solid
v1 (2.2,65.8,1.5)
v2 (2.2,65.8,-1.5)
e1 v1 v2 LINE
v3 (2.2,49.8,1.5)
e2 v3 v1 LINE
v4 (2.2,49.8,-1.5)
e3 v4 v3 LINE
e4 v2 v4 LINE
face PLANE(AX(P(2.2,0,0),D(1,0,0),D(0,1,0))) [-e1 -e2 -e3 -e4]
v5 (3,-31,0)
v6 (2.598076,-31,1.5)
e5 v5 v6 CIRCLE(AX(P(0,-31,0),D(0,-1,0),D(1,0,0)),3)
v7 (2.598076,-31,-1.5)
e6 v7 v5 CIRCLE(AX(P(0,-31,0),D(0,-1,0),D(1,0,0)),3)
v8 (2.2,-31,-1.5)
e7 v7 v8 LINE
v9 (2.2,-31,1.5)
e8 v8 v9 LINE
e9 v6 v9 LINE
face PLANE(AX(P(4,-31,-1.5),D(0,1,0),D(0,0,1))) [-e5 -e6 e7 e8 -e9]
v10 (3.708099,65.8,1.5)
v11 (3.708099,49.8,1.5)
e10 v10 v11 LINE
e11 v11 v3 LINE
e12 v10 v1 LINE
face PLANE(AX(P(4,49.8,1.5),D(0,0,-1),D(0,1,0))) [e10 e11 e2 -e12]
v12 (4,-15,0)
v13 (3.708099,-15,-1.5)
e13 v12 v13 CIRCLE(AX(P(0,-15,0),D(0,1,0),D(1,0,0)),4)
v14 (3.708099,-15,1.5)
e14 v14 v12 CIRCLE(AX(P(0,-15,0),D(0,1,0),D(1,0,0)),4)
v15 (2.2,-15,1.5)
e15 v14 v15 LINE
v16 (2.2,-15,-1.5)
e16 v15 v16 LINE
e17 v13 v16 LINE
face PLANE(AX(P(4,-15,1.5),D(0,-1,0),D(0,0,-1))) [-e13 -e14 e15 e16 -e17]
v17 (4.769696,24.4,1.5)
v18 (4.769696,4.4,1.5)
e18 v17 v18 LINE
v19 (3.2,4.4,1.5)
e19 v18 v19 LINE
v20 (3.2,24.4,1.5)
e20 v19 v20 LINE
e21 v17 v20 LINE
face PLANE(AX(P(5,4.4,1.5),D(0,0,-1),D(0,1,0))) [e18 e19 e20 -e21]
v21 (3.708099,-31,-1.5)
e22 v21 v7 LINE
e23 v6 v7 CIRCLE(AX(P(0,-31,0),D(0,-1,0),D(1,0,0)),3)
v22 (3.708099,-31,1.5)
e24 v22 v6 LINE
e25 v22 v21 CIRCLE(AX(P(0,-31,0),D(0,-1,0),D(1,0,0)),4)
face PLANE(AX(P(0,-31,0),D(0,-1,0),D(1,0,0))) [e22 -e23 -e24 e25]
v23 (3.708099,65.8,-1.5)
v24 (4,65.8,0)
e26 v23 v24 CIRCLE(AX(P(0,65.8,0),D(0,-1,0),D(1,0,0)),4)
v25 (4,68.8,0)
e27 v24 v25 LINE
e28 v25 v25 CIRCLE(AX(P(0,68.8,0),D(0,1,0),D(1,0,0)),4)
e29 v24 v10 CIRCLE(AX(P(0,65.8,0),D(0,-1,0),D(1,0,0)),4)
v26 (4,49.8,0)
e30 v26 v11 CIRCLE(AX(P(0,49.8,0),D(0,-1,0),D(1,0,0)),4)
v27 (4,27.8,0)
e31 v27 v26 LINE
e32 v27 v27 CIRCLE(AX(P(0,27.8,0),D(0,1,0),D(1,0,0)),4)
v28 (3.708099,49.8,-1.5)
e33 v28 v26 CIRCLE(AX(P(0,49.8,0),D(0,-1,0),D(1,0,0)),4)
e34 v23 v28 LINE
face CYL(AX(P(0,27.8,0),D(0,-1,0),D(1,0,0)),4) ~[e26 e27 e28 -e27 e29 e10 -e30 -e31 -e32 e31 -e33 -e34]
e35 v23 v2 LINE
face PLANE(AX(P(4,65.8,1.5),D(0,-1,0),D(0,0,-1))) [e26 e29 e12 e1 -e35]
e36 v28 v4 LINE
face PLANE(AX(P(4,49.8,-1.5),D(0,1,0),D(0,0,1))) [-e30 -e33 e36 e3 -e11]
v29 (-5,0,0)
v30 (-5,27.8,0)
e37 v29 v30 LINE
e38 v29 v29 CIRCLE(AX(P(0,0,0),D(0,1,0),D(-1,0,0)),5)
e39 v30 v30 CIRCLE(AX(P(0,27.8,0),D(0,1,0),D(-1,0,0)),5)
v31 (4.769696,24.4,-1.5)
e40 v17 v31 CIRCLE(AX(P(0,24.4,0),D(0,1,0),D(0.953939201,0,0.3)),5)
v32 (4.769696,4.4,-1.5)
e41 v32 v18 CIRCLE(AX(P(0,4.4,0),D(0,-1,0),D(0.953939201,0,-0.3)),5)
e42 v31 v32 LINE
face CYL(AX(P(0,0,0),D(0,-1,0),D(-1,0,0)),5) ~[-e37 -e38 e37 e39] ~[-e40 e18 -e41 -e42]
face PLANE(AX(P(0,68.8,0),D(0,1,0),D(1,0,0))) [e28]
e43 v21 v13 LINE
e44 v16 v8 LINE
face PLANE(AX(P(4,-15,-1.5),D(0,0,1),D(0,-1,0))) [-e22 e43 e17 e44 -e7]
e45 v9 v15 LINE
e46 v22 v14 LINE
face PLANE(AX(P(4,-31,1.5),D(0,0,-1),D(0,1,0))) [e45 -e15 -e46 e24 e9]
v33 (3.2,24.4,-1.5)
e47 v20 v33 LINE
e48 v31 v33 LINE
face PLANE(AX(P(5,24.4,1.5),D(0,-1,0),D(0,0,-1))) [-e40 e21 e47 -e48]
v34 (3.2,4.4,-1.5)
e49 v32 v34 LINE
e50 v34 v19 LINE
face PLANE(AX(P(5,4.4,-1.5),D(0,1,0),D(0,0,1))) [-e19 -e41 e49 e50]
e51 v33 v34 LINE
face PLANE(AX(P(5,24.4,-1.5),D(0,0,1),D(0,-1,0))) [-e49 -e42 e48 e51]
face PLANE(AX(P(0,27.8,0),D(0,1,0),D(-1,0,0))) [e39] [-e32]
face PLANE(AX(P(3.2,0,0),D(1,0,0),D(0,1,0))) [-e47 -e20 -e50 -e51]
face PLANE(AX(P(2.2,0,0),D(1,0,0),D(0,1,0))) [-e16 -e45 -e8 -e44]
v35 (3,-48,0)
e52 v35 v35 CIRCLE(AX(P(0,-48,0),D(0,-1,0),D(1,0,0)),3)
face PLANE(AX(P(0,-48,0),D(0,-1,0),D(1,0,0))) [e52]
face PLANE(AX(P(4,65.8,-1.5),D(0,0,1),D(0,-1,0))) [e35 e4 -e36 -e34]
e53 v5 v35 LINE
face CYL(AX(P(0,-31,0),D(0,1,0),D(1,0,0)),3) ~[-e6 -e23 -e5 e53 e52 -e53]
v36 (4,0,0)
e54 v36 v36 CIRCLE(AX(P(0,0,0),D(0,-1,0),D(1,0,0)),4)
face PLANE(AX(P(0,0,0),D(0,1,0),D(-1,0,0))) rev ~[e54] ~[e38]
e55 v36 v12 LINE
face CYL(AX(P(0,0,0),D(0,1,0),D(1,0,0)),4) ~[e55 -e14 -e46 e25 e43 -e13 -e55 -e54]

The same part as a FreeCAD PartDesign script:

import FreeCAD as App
import Part
import Sketcher

doc = App.newDocument("Part")
body = doc.addObject("PartDesign::Body", "Body")

sketch1 = body.newObject("Sketcher::SketchObject", "Sketch")
sketch1.AttachmentSupport = (doc.getObject("XZ_Plane"), [""])
sketch1.MapMode = "FlatFace"
sketch1.addGeometry(Part.Circle(App.Vector(0, 0, 0), App.Vector(0, 0, 1), 5), False)
sketch1.addConstraint([
    Sketcher.Constraint("Coincident", 0, 3, -1, 1),
    Sketcher.Constraint("Diameter", 0, 10.0),
])
pad1 = body.newObject("PartDesign::Pad", "Pad")
pad1.Profile = sketch1
pad1.Length = 27.8
pad1.Reversed = True

sketch2 = body.newObject("Sketcher::SketchObject", "Sketch001")
sketch2.AttachmentSupport = (doc.getObject("XZ_Plane"), [""])
sketch2.MapMode = "FlatFace"
sketch2.AttachmentOffset = App.Placement(App.Vector(0, 0, -27.8), App.Rotation())
sketch2.addGeometry(Part.Circle(App.Vector(0, 0, 0), App.Vector(0, 0, 1), 4), False)
sketch2.addConstraint([
    Sketcher.Constraint("Coincident", 0, 3, -1, 1),
    Sketcher.Constraint("Diameter", 0, 8.0),
])
pad2 = body.newObject("PartDesign::Pad", "Pad001")
pad2.Profile = sketch2
pad2.Length = 41
pad2.Reversed = True

sketch3 = body.newObject("Sketcher::SketchObject", "Sketch002")
sketch3.AttachmentSupport = (doc.getObject("XZ_Plane"), [""])
sketch3.MapMode = "FlatFace"
sketch3.addGeometry(Part.Circle(App.Vector(0, 0, 0), App.Vector(0, 0, 1), 4), False)
sketch3.addConstraint([
    Sketcher.Constraint("Coincident", 0, 3, -1, 1),
    Sketcher.Constraint("Diameter", 0, 8.0),
])
pad3 = body.newObject("PartDesign::Pad", "Pad002")
pad3.Profile = sketch3
pad3.Length = 31

sketch4 = body.newObject("Sketcher::SketchObject", "Sketch003")
sketch4.AttachmentSupport = (doc.getObject("XZ_Plane"), [""])
sketch4.MapMode = "FlatFace"
sketch4.AttachmentOffset = App.Placement(App.Vector(0, 0, 31), App.Rotation())
sketch4.addGeometry(Part.Circle(App.Vector(0, 0, 0), App.Vector(0, 0, 1), 3), False)
sketch4.addConstraint([
    Sketcher.Constraint("Coincident", 0, 3, -1, 1),
    Sketcher.Constraint("Diameter", 0, 6.0),
])
pad4 = body.newObject("PartDesign::Pad", "Pad003")
pad4.Profile = sketch4
pad4.Length = 17

sketch5 = body.newObject("Sketcher::SketchObject", "Sketch004")
sketch5.AttachmentSupport = (doc.getObject("YZ_Plane"), [""])
sketch5.MapMode = "FlatFace"
sketch5.AttachmentOffset = App.Placement(App.Vector(0, 0, 5), App.Rotation())
sketch5.addGeometry([
    Part.LineSegment(App.Vector(24.4, 1.5, 0), App.Vector(4.4, 1.5, 0)),
    Part.LineSegment(App.Vector(4.4, 1.5, 0), App.Vector(4.4, -1.5, 0)),
    Part.LineSegment(App.Vector(4.4, -1.5, 0), App.Vector(24.4, -1.5, 0)),
    Part.LineSegment(App.Vector(24.4, -1.5, 0), App.Vector(24.4, 1.5, 0)),
], False)
sketch5.addConstraint([
    Sketcher.Constraint("Coincident", 0, 2, 1, 1),
    Sketcher.Constraint("Coincident", 1, 2, 2, 1),
    Sketcher.Constraint("Coincident", 2, 2, 3, 1),
    Sketcher.Constraint("Coincident", 3, 2, 0, 1),
    Sketcher.Constraint("Horizontal", 0),
    Sketcher.Constraint("Vertical", 1),
    Sketcher.Constraint("Horizontal", 2),
    Sketcher.Constraint("Vertical", 3),
    Sketcher.Constraint("DistanceX", 0, 2, 0, 1, 20.0),
    Sketcher.Constraint("DistanceY", 1, 2, 1, 1, 3.0),
    Sketcher.Constraint("DistanceX", -1, 1, 0, 2, 4.4),
    Sketcher.Constraint("DistanceY", -1, 1, 0, 2, 1.5),
])
pocket1 = body.newObject("PartDesign::Pocket", "Pocket")
pocket1.Profile = sketch5
pocket1.Length = 1.8

sketch6 = body.newObject("Sketcher::SketchObject", "Sketch005")
sketch6.AttachmentSupport = (doc.getObject("YZ_Plane"), [""])
sketch6.MapMode = "FlatFace"
sketch6.AttachmentOffset = App.Placement(App.Vector(0, 0, 4), App.Rotation())
sketch6.addGeometry([
    Part.LineSegment(App.Vector(65.8, 1.5, 0), App.Vector(49.8, 1.5, 0)),
    Part.LineSegment(App.Vector(49.8, 1.5, 0), App.Vector(49.8, -1.5, 0)),
    Part.LineSegment(App.Vector(49.8, -1.5, 0), App.Vector(65.8, -1.5, 0)),
    Part.LineSegment(App.Vector(65.8, -1.5, 0), App.Vector(65.8, 1.5, 0)),
    Part.LineSegment(App.Vector(-15, 1.5, 0), App.Vector(-31, 1.5, 0)),
    Part.LineSegment(App.Vector(-31, 1.5, 0), App.Vector(-31, -1.5, 0)),
    Part.LineSegment(App.Vector(-31, -1.5, 0), App.Vector(-15, -1.5, 0)),
    Part.LineSegment(App.Vector(-15, -1.5, 0), App.Vector(-15, 1.5, 0)),
], False)
sketch6.addConstraint([
    Sketcher.Constraint("Coincident", 0, 2, 1, 1),
    Sketcher.Constraint("Coincident", 1, 2, 2, 1),
    Sketcher.Constraint("Coincident", 2, 2, 3, 1),
    Sketcher.Constraint("Coincident", 3, 2, 0, 1),
    Sketcher.Constraint("Coincident", 4, 2, 5, 1),
    Sketcher.Constraint("Coincident", 5, 2, 6, 1),
    Sketcher.Constraint("Coincident", 6, 2, 7, 1),
    Sketcher.Constraint("Coincident", 7, 2, 4, 1),
    Sketcher.Constraint("Horizontal", 0),
    Sketcher.Constraint("Vertical", 1),
    Sketcher.Constraint("Horizontal", 2),
    Sketcher.Constraint("Vertical", 3),
    Sketcher.Constraint("Horizontal", 4),
    Sketcher.Constraint("Vertical", 5),
    Sketcher.Constraint("Horizontal", 6),
    Sketcher.Constraint("Vertical", 7),
    Sketcher.Constraint("Horizontal", 3, 2, 4, 2),
    Sketcher.Constraint("Horizontal", 2, 2, 5, 2),
    Sketcher.Constraint("Equal", 2, 4),
    Sketcher.Constraint("DistanceX", 0, 2, 0, 1, 16.0),
    Sketcher.Constraint("DistanceY", 1, 2, 1, 1, 3.0),
    Sketcher.Constraint("DistanceX", 4, 2, -1, 1, 31.0),
    Sketcher.Constraint("DistanceX", -1, 1, 0, 2, 49.8),
    Sketcher.Constraint("DistanceY", -1, 1, 0, 2, 1.5),
])
pocket2 = body.newObject("PartDesign::Pocket", "Pocket001")
pocket2.Profile = sketch6
pocket2.Length = 1.8

doc.recompute()
